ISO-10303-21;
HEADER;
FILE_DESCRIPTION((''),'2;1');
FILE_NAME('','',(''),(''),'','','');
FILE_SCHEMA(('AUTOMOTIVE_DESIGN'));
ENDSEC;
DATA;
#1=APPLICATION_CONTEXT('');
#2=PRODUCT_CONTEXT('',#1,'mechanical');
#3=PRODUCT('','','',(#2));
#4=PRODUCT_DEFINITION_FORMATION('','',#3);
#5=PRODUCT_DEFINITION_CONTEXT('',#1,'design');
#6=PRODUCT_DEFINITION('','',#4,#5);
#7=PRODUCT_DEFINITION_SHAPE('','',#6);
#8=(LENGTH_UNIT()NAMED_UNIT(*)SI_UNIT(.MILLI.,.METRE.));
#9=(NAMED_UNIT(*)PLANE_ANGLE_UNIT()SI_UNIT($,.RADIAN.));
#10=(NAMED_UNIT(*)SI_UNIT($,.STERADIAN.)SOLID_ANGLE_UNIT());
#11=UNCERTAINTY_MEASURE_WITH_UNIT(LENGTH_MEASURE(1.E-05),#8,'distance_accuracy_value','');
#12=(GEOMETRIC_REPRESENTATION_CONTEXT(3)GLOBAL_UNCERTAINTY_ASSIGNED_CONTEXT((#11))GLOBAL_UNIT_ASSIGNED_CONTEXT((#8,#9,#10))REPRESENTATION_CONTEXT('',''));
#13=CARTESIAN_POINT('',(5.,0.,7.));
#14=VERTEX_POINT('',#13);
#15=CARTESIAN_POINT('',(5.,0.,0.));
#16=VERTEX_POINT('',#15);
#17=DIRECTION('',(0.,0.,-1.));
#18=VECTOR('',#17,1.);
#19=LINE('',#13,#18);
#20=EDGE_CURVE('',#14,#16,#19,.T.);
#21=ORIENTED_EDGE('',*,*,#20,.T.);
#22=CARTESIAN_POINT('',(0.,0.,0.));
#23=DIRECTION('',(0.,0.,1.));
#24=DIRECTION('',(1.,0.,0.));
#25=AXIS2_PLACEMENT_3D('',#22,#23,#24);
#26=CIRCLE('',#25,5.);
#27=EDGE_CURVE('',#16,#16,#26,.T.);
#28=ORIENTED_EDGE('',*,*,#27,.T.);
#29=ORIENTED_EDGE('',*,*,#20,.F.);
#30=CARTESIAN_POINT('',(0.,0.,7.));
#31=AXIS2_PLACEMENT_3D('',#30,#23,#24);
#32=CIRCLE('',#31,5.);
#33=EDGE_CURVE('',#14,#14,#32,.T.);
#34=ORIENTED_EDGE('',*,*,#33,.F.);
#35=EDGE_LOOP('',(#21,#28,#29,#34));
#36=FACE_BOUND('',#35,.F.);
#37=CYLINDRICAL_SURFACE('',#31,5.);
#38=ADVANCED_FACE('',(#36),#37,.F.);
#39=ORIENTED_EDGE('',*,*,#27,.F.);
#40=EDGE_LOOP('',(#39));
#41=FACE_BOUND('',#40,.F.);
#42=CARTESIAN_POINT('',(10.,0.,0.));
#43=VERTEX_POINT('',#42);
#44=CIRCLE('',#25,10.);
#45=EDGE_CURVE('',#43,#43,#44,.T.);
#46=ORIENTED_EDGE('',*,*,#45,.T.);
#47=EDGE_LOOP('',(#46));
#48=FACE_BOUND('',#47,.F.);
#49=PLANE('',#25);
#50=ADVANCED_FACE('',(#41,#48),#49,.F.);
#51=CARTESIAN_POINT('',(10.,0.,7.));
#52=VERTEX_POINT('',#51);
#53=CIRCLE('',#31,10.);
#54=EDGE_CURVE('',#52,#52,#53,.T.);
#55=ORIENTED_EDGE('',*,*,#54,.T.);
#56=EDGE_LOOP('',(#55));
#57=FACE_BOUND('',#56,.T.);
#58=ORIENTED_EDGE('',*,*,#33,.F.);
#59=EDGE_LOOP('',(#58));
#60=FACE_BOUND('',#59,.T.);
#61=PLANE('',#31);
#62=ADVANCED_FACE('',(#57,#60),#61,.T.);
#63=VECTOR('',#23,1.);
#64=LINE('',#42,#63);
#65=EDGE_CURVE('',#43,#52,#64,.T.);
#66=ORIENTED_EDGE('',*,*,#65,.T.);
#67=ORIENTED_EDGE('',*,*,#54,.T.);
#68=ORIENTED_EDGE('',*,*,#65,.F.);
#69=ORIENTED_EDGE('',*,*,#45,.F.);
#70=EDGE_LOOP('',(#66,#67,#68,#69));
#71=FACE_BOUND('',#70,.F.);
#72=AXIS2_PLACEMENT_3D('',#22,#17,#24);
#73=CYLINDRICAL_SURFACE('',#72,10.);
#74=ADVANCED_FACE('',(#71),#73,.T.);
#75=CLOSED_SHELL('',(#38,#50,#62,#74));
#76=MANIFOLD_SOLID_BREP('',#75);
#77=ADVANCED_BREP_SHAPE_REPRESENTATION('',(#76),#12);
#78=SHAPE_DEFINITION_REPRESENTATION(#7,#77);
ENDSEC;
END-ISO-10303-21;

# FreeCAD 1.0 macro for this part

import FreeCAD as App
import Part
import Sketcher

doc = App.newDocument("Part")
body = doc.addObject("PartDesign::Body", "Body")

# Sketch on XY plane
sketch1 = body.newObject("Sketcher::SketchObject", "Sketch")
sketch1.AttachmentSupport = (doc.getObject("XY_Plane"), [""])
sketch1.MapMode = "FlatFace"
sketch1.addGeometry(Part.Circle(App.Vector(0, 0, 0), App.Vector(0, 0, 1), 10), False)
sketch1.addConstraint([
    Sketcher.Constraint("Coincident", 0, 3, -1, 1),
    Sketcher.Constraint("Diameter", 0, 20.0),
])
pad1 = body.newObject("PartDesign::Pad", "Pad")
pad1.Profile = sketch1
pad1.Length = 7

# Sketch on XY plane
sketch2 = body.newObject("Sketcher::SketchObject", "Sketch001")
sketch2.AttachmentSupport = (doc.getObject("XY_Plane"), [""])
sketch2.MapMode = "FlatFace"
sketch2.AttachmentOffset = App.Placement(App.Vector(0, 0, 7), App.Rotation())
sketch2.addGeometry(Part.Circle(App.Vector(0, 0, 0), App.Vector(0, 0, 1), 5), False)
sketch2.addConstraint([
    Sketcher.Constraint("Coincident", 0, 3, -1, 1),
    Sketcher.Constraint("Diameter", 0, 10.0),
])
pocket1 = body.newObject("PartDesign::Pocket", "Pocket")
pocket1.Profile = sketch2
pocket1.Length = 7

doc.recompute()
